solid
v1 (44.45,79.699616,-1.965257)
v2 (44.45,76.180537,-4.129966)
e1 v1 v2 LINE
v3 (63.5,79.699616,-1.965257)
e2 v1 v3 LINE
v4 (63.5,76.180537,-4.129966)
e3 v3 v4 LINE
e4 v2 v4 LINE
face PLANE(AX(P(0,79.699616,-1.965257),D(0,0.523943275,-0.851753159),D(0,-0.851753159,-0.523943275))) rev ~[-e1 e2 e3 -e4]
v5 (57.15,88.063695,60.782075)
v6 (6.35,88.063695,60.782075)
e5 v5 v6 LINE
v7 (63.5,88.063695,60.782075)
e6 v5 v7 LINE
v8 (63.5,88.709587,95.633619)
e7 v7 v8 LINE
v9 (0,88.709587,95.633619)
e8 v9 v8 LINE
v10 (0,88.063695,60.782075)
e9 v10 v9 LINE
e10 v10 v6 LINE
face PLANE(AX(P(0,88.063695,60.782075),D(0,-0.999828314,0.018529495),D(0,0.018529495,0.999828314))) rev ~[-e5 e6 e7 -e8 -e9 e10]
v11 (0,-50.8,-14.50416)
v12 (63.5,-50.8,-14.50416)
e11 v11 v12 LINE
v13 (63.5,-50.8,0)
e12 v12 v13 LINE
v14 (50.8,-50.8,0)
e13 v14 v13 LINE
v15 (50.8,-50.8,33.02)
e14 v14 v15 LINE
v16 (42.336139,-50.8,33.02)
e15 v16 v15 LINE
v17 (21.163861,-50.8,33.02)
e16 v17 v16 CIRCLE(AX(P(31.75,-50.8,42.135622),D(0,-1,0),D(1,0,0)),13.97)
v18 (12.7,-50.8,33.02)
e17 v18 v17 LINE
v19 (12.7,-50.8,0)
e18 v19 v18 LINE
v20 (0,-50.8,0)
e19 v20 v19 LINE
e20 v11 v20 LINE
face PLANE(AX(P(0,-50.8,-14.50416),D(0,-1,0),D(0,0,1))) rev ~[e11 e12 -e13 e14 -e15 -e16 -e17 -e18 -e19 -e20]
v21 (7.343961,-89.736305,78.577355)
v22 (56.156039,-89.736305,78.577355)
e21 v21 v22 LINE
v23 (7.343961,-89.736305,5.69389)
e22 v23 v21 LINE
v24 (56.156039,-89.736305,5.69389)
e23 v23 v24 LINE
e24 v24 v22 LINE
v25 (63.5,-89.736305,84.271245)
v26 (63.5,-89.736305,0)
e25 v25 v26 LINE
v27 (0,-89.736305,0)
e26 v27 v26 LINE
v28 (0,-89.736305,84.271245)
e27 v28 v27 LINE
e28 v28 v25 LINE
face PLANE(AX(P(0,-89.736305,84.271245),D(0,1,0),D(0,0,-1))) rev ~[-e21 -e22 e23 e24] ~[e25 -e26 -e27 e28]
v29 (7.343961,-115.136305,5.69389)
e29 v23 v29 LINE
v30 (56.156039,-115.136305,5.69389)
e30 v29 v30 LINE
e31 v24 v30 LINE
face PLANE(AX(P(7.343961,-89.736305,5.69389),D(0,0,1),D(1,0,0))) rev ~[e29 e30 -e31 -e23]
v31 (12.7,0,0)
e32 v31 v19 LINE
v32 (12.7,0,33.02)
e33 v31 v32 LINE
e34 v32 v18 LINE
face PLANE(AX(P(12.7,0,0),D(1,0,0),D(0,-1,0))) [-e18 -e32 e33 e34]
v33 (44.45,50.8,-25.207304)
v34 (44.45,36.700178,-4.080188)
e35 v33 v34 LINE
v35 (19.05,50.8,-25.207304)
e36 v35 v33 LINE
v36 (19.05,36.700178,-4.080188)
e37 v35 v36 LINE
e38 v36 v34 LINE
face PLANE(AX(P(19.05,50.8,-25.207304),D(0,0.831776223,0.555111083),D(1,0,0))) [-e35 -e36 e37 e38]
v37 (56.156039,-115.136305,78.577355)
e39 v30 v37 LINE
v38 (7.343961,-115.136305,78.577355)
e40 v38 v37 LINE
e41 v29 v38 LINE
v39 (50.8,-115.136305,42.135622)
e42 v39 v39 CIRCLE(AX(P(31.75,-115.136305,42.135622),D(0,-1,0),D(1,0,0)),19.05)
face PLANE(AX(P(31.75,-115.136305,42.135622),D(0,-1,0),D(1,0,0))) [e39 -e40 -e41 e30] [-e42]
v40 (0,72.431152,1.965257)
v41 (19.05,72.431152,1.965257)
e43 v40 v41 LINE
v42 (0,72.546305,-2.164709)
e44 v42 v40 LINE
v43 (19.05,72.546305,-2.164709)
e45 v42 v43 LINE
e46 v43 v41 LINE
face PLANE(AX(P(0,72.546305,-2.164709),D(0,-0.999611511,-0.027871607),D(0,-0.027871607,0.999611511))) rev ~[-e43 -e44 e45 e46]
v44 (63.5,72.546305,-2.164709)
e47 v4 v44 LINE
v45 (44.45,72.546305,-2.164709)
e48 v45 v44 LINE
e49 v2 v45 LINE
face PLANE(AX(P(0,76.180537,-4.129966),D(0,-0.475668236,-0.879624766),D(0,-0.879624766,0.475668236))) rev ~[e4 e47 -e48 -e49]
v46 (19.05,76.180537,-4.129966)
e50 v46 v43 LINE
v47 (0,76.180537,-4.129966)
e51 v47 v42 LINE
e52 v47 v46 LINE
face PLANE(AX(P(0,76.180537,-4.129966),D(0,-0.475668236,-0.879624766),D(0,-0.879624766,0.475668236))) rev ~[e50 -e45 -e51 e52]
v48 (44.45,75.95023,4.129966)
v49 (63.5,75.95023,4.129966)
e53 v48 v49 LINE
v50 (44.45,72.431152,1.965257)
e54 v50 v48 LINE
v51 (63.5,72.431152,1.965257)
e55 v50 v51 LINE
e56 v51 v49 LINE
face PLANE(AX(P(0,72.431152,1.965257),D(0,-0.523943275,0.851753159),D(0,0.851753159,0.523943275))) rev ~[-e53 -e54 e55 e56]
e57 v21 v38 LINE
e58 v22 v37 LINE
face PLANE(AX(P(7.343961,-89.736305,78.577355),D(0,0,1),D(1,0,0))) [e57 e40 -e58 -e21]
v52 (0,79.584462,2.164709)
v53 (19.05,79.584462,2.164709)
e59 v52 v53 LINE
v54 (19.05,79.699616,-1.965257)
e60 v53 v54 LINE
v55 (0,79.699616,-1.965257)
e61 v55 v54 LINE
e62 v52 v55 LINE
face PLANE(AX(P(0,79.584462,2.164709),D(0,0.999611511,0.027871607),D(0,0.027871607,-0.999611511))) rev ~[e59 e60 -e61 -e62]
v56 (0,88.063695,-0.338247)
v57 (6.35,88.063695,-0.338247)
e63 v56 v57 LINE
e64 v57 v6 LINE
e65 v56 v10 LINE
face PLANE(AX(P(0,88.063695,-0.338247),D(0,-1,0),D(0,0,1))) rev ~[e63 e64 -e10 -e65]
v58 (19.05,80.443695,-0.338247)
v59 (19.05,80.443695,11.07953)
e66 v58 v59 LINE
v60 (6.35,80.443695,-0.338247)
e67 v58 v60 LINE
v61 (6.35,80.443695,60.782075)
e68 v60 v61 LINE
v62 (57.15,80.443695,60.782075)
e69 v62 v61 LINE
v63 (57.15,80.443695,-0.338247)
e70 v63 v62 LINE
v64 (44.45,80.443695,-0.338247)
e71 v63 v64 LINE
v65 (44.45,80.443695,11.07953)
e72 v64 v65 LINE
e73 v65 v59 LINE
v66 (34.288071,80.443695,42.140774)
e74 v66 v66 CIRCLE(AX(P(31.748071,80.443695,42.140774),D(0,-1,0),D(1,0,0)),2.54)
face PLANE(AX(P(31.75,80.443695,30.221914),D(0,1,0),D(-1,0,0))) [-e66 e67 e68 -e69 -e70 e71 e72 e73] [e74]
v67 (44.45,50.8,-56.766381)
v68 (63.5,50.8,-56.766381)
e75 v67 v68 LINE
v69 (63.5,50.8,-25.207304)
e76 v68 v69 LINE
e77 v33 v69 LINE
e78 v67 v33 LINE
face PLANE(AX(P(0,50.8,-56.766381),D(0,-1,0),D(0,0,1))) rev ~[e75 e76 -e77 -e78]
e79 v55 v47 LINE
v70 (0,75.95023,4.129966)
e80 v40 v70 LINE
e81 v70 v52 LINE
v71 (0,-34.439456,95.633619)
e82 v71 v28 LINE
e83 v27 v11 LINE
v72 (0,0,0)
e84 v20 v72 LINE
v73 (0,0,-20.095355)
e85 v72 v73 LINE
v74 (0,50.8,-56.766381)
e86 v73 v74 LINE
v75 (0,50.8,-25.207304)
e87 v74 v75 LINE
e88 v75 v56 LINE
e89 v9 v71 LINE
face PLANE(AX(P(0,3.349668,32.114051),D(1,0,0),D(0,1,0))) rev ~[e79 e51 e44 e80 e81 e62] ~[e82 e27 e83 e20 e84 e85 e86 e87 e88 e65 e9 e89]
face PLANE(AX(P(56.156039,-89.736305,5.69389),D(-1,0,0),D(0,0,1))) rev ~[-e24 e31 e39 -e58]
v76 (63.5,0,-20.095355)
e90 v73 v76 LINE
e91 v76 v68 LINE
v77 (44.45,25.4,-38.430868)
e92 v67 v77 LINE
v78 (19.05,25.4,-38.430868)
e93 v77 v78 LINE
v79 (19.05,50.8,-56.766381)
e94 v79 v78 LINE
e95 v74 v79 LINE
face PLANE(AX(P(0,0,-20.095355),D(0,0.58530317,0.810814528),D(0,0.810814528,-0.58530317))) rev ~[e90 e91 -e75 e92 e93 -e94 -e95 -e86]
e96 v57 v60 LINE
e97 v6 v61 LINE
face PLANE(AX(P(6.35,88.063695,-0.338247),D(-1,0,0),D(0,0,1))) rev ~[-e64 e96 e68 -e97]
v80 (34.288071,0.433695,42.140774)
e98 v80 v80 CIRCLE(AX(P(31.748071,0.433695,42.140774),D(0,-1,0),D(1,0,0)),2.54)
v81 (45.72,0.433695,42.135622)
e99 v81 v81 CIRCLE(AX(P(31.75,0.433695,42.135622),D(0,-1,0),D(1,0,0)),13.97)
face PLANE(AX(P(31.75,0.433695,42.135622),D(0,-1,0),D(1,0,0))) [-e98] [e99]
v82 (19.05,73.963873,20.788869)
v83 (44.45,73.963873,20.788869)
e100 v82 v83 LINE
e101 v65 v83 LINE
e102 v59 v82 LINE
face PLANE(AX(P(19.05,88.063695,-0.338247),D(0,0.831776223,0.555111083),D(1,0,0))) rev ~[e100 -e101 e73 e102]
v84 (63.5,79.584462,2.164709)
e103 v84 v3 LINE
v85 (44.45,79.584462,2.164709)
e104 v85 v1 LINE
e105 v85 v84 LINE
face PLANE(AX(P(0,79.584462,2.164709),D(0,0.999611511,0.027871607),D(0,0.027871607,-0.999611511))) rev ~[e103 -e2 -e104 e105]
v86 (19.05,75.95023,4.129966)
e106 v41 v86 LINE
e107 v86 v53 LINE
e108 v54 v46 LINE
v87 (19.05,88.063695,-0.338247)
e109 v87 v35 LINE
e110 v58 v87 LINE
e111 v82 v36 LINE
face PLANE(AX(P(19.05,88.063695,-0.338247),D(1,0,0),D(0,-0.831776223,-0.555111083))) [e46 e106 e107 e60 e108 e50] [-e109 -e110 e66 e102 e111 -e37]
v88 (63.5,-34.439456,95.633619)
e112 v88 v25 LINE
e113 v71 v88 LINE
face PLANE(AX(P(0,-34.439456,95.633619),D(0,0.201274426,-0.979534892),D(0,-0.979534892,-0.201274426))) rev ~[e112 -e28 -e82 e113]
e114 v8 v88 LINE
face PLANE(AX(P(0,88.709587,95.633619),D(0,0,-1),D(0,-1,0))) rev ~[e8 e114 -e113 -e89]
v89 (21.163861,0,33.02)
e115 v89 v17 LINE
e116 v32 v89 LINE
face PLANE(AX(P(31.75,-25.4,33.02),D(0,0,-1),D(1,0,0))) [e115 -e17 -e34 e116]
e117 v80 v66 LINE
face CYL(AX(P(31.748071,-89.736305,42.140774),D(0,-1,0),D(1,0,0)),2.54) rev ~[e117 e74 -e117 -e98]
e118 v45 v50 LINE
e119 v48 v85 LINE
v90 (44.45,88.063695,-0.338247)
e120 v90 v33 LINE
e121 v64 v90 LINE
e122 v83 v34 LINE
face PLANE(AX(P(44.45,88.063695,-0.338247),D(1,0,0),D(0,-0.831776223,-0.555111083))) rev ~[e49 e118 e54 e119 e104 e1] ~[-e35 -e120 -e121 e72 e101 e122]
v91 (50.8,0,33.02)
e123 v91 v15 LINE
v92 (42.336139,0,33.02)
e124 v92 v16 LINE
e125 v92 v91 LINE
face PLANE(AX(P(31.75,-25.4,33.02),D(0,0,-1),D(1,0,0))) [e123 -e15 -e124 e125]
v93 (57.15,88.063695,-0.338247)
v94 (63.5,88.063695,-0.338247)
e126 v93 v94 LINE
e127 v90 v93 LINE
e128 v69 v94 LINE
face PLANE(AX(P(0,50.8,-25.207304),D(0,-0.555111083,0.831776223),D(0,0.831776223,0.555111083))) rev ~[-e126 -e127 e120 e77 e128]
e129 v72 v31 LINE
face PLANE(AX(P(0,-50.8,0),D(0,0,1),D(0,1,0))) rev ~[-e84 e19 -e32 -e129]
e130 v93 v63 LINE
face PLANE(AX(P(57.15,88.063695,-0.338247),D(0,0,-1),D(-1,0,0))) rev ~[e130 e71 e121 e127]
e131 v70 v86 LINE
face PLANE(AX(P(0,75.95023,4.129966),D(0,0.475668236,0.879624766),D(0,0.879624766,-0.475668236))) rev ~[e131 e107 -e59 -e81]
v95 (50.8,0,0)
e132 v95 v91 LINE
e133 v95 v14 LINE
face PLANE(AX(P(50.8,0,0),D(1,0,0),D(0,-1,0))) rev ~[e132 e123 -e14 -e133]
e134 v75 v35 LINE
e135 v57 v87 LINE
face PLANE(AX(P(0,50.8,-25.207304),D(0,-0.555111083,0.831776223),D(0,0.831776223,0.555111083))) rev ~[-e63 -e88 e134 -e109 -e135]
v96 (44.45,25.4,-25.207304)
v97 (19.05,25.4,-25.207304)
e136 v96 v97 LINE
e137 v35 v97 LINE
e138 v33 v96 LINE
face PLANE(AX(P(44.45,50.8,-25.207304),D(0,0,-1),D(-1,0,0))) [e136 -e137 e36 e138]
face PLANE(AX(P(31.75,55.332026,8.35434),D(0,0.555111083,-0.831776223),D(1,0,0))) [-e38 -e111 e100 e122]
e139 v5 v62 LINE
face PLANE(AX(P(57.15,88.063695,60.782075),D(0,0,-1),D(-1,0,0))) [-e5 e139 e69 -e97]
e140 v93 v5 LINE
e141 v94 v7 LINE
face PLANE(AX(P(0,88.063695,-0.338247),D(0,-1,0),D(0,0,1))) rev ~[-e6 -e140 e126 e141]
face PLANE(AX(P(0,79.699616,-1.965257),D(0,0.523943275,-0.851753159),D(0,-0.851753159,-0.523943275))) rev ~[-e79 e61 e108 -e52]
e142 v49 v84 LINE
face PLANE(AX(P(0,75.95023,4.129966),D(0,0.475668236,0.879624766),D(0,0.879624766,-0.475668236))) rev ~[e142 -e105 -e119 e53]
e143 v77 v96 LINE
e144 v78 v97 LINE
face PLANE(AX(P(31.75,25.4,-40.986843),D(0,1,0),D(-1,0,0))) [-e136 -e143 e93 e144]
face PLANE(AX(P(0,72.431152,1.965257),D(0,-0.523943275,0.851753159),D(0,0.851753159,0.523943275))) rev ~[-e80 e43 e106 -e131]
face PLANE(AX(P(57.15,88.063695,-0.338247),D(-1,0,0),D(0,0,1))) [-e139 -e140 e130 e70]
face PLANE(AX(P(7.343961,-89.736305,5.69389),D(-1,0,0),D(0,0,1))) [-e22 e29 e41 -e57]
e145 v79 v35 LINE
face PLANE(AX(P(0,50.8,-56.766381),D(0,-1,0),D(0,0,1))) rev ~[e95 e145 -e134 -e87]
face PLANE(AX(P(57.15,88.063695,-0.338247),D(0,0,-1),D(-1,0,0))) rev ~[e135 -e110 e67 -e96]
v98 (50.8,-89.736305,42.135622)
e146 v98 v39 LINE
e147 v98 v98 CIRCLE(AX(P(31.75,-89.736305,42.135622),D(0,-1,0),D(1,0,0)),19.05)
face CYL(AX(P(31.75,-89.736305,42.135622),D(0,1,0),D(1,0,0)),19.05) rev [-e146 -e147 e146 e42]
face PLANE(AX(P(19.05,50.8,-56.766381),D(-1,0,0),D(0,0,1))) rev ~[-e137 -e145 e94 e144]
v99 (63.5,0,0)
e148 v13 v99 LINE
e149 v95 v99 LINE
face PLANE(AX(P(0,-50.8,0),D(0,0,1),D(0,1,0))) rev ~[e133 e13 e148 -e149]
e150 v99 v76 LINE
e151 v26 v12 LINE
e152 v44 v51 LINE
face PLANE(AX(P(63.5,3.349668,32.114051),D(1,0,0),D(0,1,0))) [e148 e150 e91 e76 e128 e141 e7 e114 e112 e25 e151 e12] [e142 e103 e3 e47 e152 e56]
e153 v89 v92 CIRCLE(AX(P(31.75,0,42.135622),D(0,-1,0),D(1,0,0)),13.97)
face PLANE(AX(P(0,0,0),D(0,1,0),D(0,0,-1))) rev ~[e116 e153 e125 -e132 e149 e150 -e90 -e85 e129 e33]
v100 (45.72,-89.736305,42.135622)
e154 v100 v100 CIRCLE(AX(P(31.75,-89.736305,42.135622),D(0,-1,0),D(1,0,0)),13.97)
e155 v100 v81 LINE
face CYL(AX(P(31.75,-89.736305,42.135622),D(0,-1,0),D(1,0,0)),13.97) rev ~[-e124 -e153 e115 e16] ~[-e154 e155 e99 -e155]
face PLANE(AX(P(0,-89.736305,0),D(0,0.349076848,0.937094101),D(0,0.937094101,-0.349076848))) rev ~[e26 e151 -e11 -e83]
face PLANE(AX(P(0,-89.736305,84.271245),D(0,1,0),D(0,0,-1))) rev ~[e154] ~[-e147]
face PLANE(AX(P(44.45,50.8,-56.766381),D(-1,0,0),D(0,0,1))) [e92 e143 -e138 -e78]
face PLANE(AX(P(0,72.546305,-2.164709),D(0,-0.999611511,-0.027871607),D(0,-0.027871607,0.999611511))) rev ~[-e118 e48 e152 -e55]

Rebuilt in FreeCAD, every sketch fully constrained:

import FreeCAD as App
import Part
import Sketcher
Q = App.Units.Quantity


def add_polygon(sketch, points):
    """Adds a closed chain of lines whose ends are joined by coincident constraints."""
    first, n = sketch.GeometryCount, len(points)
    for a, b in zip(points, points[1:] + points[:1]):
        sketch.addGeometry(Part.LineSegment(App.Vector(*a, 0), App.Vector(*b, 0)), False)
    for i in range(n):
        sketch.addConstraint(Sketcher.Constraint("Coincident", first + i, 2, first + (i + 1) % n, 1))

doc = App.newDocument("Part")
body = doc.addObject("PartDesign::Body", "Body")

# Sketch on YZ plane
sketch1 = doc.addObject("Sketcher::SketchObject", "Sketch")
body.addObject(sketch1)
sketch1.AttachmentSupport = (doc.YZ_Plane, [""])
sketch1.MapMode = "FlatFace"
add_polygon(sketch1, [(88.1, -0.3), (88.1, 60.8), (88.7, 95.6), (-34.4, 95.6), (-89.7, 84.3), (-89.7, 0), (-50.8, -14.5), (-50.8, 0), (0, 0), (0, -20.1), (50.8, -56.8), (50.8, -25.2)])  # lines 0-11
add_polygon(sketch1, [(76.2, -4.1), (72.5, -2.2), (72.4, 2), (76, 4.1), (79.6, 2.2), (79.7, -2)])  # lines 12-17
sketch1.addConstraint([
    Sketcher.Constraint("Vertical", 0),
    Sketcher.Constraint("Horizontal", 2),
    Sketcher.Constraint("Vertical", 4),
    Sketcher.Constraint("Vertical", 6),
    Sketcher.Constraint("Horizontal", 7),
    Sketcher.Constraint("Vertical", 8),
    Sketcher.Constraint("Vertical", 10),
    Sketcher.Constraint("Coincident", 7, 2, -1, 1),
    Sketcher.Constraint("PointOnObject", 4, 2, -1),
    Sketcher.Constraint("Parallel", 12, 15),
    Sketcher.Constraint("Parallel", 13, 16),
    Sketcher.Constraint("Parallel", 14, 17),
    Sketcher.Constraint("Equal", 12, 13),
    Sketcher.Constraint("Equal", 13, 14),
    Sketcher.Constraint("Equal", 14, 15),
    Sketcher.Constraint("DistanceX", 7, 1, 7, 2, Q("2 in")),
    Sketcher.Constraint("DistanceX", -1, 1, 9, 2, Q("2 in")),
    Sketcher.Constraint("DistanceX", 3, 2, 0, 2, Q("7 in")),
    Sketcher.Constraint("DistanceY", 6, 1, 6, 2, 14.50416),
    Sketcher.Constraint("Distance", 1, 34.857528),
    Sketcher.Constraint("Distance", 3, 56.452149),
    Sketcher.Constraint("Distance", 5, 41.550048),
    Sketcher.Constraint("Distance", 12, 4.131571),
    Sketcher.Constraint("DistanceX", 2, 2, 2, 1, 123.149043),
    Sketcher.Constraint("DistanceY", 0, 1, 0, 2, 61.120322),
    Sketcher.Constraint("DistanceY", 4, 2, 4, 1, 84.271245),
    Sketcher.Constraint("DistanceY", 8, 2, 8, 1, 20.095355),
    Sketcher.Constraint("DistanceY", 10, 1, 10, 2, 31.559077),
    Sketcher.Constraint("DistanceY", -1, 1, 1, 2, 95.633619),
    Sketcher.Constraint("DistanceY", 9, 2, -1, 1, 56.766381),
    Sketcher.Constraint("DistanceY", 12, 2, -1, 1, 2.164709),
    Sketcher.Constraint("DistanceX", -1, 1, 13, 2, 72.431152),
    Sketcher.Constraint("DistanceX", -1, 1, 14, 2, 75.95023),
    Sketcher.Constraint("DistanceY", -1, 1, 15, 2, 2.164709),
    Sketcher.Constraint("DistanceX", 12, 2, 11, 2, 15.517389),
])
pad1 = doc.addObject("PartDesign::Pad", "Pad")
body.addObject(pad1)
pad1.Profile = sketch1
pad1.Length = Q("2.5 in")

# Sketch on an angled plane
sketch2 = doc.addObject("Sketcher::SketchObject", "Sketch001")
body.addObject(sketch2)
sketch2.Placement = App.Placement(App.Vector(0, 27.292858, -40.895508), App.Rotation(App.Vector(1, 0, 0), App.Vector(0, -0.831776223, -0.555111083), App.Vector(0, 0.555111083, -0.831776223), "ZXY"))
add_polygon(sketch2, [(19, -28), (19, -73), (44, -73), (44, -28)])  # lines 0-3
sketch2.addConstraint([
    Sketcher.Constraint("Vertical", 0),
    Sketcher.Constraint("Horizontal", 1),
    Sketcher.Constraint("Vertical", 2),
    Sketcher.Constraint("Horizontal", 3),
    Sketcher.Constraint("DistanceX", 1, 1, 1, 2, Q("1 in")),
    Sketcher.Constraint("DistanceX", -1, 1, 0, 2, Q("0.75 in")),
    Sketcher.Constraint("DistanceY", 0, 2, 0, 1, 44.800144),
    Sketcher.Constraint("DistanceY", 2, 2, -1, 1, 28.261378),
])
pocket1 = doc.addObject("PartDesign::Pocket", "Pocket")
body.addObject(pocket1)
pocket1.Profile = sketch2
pocket1.Length = Q("1 in")

# Sketch on XZ plane
sketch3 = doc.addObject("Sketcher::SketchObject", "Sketch002")
body.addObject(sketch3)
sketch3.AttachmentSupport = (doc.XZ_Plane, [""])
sketch3.MapMode = "FlatFace"
sketch3.AttachmentOffset = App.Placement(App.Vector(0, 0, -2 * 25.4), App.Rotation())
add_polygon(sketch3, [(44, -25), (44, -57), (19, -57), (19, -25)])  # lines 0-3
sketch3.addConstraint([
    Sketcher.Constraint("Vertical", 0),
    Sketcher.Constraint("Horizontal", 1),
    Sketcher.Constraint("Vertical", 2),
    Sketcher.Constraint("Horizontal", 3),
    Sketcher.Constraint("DistanceX", 1, 2, 1, 1, Q("1 in")),
    Sketcher.Constraint("DistanceX", -1, 1, 0, 2, Q("1.75 in")),
    Sketcher.Constraint("DistanceY", 0, 2, 0, 1, 31.559077),
    Sketcher.Constraint("DistanceY", 0, 2, -1, 1, 56.766381),
])
pocket2 = doc.addObject("PartDesign::Pocket", "Pocket001")
body.addObject(pocket2)
pocket2.Profile = sketch3
pocket2.Length = Q("1 in")
pocket2.Reversed = True

# Sketch on XZ plane
sketch4 = doc.addObject("Sketcher::SketchObject", "Sketch003")
body.addObject(sketch4)
sketch4.AttachmentSupport = (doc.XZ_Plane, [""])
sketch4.MapMode = "FlatFace"
sketch4.AttachmentOffset = App.Placement(App.Vector(0, 0, 89.736305), App.Rotation())
add_polygon(sketch4, [(7, 79), (7, 6), (56, 6), (56, 79)])  # lines 0-3
sketch4.addGeometry(Part.Circle(App.Vector(32, 42, 0), App.Vector(0, 0, 1), 19), False)  # 4
sketch4.addConstraint([
    Sketcher.Constraint("Vertical", 0),
    Sketcher.Constraint("Horizontal", 1),
    Sketcher.Constraint("Vertical", 2),
    Sketcher.Constraint("Horizontal", 3),
    Sketcher.Constraint("Diameter", 4, Q("1.5 in")),
    Sketcher.Constraint("DistanceX", -1, 1, 4, 3, Q("1.25 in")),
    Sketcher.Constraint("DistanceX", 1, 1, 1, 2, 48.812078),
    Sketcher.Constraint("DistanceY", 0, 2, 0, 1, 72.883464),
    Sketcher.Constraint("DistanceX", -1, 1, 0, 2, 7.343961),
    Sketcher.Constraint("DistanceY", -1, 1, 0, 2, 5.69389),
    Sketcher.Constraint("DistanceY", -1, 1, 4, 3, 42.135622),
])
pad2 = doc.addObject("PartDesign::Pad", "Pad001")
body.addObject(pad2)
pad2.Profile = sketch4
pad2.Length = Q("1 in")

# Sketch on XZ plane
sketch5 = doc.addObject("Sketcher::SketchObject", "Sketch004")
body.addObject(sketch5)
sketch5.AttachmentSupport = (doc.XZ_Plane, [""])
sketch5.MapMode = "FlatFace"
sketch5.AttachmentOffset = App.Placement(App.Vector(0, 0, 89.736305), App.Rotation())
sketch5.addGeometry(Part.Circle(App.Vector(32, 42, 0), App.Vector(0, 0, 1), 14), False)
sketch5.addConstraint([
    Sketcher.Constraint("Diameter", 0, Q("1.1 in")),
    Sketcher.Constraint("DistanceX", -1, 1, 0, 3, Q("1.25 in")),
    Sketcher.Constraint("DistanceY", -1, 1, 0, 3, 42.135622),
])
pocket3 = doc.addObject("PartDesign::Pocket", "Pocket002")
body.addObject(pocket3)
pocket3.Profile = sketch5
pocket3.Length = Q("3.55 in")

# Sketch on XY plane
sketch6 = doc.addObject("Sketcher::SketchObject", "Sketch005")
body.addObject(sketch6)
sketch6.AttachmentSupport = (doc.XY_Plane, [""])
sketch6.MapMode = "FlatFace"
add_polygon(sketch6, [(13, -51), (13, 0), (51, 0), (51, -51)])  # lines 0-3
sketch6.addConstraint([
    Sketcher.Constraint("Vertical", 0),
    Sketcher.Constraint("Horizontal", 1),
    Sketcher.Constraint("Vertical", 2),
    Sketcher.Constraint("Horizontal", 3),
    Sketcher.Constraint("PointOnObject", 0, 2, -1),
    Sketcher.Constraint("DistanceY", 0, 1, 0, 2, Q("2 in")),
    Sketcher.Constraint("DistanceX", 1, 1, 1, 2, Q("1.5 in")),
    Sketcher.Constraint("DistanceX", -1, 1, 1, 2, Q("2 in")),
])
pocket4 = doc.addObject("PartDesign::Pocket", "Pocket003")
body.addObject(pocket4)
pocket4.Profile = sketch6
pocket4.Length = Q("1.3 in")
pocket4.Reversed = True

# Sketch on XZ plane
sketch7 = doc.addObject("Sketcher::SketchObject", "Sketch006")
body.addObject(sketch7)
sketch7.AttachmentSupport = (doc.XZ_Plane, [""])
sketch7.MapMode = "FlatFace"
sketch7.AttachmentOffset = App.Placement(App.Vector(0, 0, -88.063695), App.Rotation())
add_polygon(sketch7, [(57, 61), (57, 0), (6, 0), (6, 61)])  # lines 0-3
sketch7.addConstraint([
    Sketcher.Constraint("Vertical", 0),
    Sketcher.Constraint("Horizontal", 1),
    Sketcher.Constraint("Vertical", 2),
    Sketcher.Constraint("Horizontal", 3),
    Sketcher.Constraint("DistanceX", 1, 2, 1, 1, Q("2 in")),
    Sketcher.Constraint("DistanceX", -1, 1, 0, 2, Q("2.25 in")),
    Sketcher.Constraint("DistanceY", 0, 2, 0, 1, 61.120322),
    Sketcher.Constraint("DistanceY", 0, 2, -1, 1, 0.338247),
])
pocket5 = doc.addObject("PartDesign::Pocket", "Pocket004")
body.addObject(pocket5)
pocket5.Profile = sketch7
pocket5.Length = Q("0.3 in")
pocket5.Reversed = True

# Sketch on XZ plane
sketch8 = doc.addObject("Sketcher::SketchObject", "Sketch007")
body.addObject(sketch8)
sketch8.AttachmentSupport = (doc.XZ_Plane, [""])
sketch8.MapMode = "FlatFace"
sketch8.AttachmentOffset = App.Placement(App.Vector(0, 0, 89.736305), App.Rotation())
sketch8.addGeometry(Part.Circle(App.Vector(31.7, 42.1, 0), App.Vector(0, 0, 1), 2.5), False)
sketch8.addConstraint([
    Sketcher.Constraint("Diameter", 0, Q("0.2 in")),
    Sketcher.Constraint("DistanceX", -1, 1, 0, 3, 31.748071),
    Sketcher.Constraint("DistanceY", -1, 1, 0, 3, 42.140774),
])
pocket6 = doc.addObject("PartDesign::Pocket", "Pocket005")
body.addObject(pocket6)
pocket6.Profile = sketch8
pocket6.Length = Q("23 in")

doc.recompute()
